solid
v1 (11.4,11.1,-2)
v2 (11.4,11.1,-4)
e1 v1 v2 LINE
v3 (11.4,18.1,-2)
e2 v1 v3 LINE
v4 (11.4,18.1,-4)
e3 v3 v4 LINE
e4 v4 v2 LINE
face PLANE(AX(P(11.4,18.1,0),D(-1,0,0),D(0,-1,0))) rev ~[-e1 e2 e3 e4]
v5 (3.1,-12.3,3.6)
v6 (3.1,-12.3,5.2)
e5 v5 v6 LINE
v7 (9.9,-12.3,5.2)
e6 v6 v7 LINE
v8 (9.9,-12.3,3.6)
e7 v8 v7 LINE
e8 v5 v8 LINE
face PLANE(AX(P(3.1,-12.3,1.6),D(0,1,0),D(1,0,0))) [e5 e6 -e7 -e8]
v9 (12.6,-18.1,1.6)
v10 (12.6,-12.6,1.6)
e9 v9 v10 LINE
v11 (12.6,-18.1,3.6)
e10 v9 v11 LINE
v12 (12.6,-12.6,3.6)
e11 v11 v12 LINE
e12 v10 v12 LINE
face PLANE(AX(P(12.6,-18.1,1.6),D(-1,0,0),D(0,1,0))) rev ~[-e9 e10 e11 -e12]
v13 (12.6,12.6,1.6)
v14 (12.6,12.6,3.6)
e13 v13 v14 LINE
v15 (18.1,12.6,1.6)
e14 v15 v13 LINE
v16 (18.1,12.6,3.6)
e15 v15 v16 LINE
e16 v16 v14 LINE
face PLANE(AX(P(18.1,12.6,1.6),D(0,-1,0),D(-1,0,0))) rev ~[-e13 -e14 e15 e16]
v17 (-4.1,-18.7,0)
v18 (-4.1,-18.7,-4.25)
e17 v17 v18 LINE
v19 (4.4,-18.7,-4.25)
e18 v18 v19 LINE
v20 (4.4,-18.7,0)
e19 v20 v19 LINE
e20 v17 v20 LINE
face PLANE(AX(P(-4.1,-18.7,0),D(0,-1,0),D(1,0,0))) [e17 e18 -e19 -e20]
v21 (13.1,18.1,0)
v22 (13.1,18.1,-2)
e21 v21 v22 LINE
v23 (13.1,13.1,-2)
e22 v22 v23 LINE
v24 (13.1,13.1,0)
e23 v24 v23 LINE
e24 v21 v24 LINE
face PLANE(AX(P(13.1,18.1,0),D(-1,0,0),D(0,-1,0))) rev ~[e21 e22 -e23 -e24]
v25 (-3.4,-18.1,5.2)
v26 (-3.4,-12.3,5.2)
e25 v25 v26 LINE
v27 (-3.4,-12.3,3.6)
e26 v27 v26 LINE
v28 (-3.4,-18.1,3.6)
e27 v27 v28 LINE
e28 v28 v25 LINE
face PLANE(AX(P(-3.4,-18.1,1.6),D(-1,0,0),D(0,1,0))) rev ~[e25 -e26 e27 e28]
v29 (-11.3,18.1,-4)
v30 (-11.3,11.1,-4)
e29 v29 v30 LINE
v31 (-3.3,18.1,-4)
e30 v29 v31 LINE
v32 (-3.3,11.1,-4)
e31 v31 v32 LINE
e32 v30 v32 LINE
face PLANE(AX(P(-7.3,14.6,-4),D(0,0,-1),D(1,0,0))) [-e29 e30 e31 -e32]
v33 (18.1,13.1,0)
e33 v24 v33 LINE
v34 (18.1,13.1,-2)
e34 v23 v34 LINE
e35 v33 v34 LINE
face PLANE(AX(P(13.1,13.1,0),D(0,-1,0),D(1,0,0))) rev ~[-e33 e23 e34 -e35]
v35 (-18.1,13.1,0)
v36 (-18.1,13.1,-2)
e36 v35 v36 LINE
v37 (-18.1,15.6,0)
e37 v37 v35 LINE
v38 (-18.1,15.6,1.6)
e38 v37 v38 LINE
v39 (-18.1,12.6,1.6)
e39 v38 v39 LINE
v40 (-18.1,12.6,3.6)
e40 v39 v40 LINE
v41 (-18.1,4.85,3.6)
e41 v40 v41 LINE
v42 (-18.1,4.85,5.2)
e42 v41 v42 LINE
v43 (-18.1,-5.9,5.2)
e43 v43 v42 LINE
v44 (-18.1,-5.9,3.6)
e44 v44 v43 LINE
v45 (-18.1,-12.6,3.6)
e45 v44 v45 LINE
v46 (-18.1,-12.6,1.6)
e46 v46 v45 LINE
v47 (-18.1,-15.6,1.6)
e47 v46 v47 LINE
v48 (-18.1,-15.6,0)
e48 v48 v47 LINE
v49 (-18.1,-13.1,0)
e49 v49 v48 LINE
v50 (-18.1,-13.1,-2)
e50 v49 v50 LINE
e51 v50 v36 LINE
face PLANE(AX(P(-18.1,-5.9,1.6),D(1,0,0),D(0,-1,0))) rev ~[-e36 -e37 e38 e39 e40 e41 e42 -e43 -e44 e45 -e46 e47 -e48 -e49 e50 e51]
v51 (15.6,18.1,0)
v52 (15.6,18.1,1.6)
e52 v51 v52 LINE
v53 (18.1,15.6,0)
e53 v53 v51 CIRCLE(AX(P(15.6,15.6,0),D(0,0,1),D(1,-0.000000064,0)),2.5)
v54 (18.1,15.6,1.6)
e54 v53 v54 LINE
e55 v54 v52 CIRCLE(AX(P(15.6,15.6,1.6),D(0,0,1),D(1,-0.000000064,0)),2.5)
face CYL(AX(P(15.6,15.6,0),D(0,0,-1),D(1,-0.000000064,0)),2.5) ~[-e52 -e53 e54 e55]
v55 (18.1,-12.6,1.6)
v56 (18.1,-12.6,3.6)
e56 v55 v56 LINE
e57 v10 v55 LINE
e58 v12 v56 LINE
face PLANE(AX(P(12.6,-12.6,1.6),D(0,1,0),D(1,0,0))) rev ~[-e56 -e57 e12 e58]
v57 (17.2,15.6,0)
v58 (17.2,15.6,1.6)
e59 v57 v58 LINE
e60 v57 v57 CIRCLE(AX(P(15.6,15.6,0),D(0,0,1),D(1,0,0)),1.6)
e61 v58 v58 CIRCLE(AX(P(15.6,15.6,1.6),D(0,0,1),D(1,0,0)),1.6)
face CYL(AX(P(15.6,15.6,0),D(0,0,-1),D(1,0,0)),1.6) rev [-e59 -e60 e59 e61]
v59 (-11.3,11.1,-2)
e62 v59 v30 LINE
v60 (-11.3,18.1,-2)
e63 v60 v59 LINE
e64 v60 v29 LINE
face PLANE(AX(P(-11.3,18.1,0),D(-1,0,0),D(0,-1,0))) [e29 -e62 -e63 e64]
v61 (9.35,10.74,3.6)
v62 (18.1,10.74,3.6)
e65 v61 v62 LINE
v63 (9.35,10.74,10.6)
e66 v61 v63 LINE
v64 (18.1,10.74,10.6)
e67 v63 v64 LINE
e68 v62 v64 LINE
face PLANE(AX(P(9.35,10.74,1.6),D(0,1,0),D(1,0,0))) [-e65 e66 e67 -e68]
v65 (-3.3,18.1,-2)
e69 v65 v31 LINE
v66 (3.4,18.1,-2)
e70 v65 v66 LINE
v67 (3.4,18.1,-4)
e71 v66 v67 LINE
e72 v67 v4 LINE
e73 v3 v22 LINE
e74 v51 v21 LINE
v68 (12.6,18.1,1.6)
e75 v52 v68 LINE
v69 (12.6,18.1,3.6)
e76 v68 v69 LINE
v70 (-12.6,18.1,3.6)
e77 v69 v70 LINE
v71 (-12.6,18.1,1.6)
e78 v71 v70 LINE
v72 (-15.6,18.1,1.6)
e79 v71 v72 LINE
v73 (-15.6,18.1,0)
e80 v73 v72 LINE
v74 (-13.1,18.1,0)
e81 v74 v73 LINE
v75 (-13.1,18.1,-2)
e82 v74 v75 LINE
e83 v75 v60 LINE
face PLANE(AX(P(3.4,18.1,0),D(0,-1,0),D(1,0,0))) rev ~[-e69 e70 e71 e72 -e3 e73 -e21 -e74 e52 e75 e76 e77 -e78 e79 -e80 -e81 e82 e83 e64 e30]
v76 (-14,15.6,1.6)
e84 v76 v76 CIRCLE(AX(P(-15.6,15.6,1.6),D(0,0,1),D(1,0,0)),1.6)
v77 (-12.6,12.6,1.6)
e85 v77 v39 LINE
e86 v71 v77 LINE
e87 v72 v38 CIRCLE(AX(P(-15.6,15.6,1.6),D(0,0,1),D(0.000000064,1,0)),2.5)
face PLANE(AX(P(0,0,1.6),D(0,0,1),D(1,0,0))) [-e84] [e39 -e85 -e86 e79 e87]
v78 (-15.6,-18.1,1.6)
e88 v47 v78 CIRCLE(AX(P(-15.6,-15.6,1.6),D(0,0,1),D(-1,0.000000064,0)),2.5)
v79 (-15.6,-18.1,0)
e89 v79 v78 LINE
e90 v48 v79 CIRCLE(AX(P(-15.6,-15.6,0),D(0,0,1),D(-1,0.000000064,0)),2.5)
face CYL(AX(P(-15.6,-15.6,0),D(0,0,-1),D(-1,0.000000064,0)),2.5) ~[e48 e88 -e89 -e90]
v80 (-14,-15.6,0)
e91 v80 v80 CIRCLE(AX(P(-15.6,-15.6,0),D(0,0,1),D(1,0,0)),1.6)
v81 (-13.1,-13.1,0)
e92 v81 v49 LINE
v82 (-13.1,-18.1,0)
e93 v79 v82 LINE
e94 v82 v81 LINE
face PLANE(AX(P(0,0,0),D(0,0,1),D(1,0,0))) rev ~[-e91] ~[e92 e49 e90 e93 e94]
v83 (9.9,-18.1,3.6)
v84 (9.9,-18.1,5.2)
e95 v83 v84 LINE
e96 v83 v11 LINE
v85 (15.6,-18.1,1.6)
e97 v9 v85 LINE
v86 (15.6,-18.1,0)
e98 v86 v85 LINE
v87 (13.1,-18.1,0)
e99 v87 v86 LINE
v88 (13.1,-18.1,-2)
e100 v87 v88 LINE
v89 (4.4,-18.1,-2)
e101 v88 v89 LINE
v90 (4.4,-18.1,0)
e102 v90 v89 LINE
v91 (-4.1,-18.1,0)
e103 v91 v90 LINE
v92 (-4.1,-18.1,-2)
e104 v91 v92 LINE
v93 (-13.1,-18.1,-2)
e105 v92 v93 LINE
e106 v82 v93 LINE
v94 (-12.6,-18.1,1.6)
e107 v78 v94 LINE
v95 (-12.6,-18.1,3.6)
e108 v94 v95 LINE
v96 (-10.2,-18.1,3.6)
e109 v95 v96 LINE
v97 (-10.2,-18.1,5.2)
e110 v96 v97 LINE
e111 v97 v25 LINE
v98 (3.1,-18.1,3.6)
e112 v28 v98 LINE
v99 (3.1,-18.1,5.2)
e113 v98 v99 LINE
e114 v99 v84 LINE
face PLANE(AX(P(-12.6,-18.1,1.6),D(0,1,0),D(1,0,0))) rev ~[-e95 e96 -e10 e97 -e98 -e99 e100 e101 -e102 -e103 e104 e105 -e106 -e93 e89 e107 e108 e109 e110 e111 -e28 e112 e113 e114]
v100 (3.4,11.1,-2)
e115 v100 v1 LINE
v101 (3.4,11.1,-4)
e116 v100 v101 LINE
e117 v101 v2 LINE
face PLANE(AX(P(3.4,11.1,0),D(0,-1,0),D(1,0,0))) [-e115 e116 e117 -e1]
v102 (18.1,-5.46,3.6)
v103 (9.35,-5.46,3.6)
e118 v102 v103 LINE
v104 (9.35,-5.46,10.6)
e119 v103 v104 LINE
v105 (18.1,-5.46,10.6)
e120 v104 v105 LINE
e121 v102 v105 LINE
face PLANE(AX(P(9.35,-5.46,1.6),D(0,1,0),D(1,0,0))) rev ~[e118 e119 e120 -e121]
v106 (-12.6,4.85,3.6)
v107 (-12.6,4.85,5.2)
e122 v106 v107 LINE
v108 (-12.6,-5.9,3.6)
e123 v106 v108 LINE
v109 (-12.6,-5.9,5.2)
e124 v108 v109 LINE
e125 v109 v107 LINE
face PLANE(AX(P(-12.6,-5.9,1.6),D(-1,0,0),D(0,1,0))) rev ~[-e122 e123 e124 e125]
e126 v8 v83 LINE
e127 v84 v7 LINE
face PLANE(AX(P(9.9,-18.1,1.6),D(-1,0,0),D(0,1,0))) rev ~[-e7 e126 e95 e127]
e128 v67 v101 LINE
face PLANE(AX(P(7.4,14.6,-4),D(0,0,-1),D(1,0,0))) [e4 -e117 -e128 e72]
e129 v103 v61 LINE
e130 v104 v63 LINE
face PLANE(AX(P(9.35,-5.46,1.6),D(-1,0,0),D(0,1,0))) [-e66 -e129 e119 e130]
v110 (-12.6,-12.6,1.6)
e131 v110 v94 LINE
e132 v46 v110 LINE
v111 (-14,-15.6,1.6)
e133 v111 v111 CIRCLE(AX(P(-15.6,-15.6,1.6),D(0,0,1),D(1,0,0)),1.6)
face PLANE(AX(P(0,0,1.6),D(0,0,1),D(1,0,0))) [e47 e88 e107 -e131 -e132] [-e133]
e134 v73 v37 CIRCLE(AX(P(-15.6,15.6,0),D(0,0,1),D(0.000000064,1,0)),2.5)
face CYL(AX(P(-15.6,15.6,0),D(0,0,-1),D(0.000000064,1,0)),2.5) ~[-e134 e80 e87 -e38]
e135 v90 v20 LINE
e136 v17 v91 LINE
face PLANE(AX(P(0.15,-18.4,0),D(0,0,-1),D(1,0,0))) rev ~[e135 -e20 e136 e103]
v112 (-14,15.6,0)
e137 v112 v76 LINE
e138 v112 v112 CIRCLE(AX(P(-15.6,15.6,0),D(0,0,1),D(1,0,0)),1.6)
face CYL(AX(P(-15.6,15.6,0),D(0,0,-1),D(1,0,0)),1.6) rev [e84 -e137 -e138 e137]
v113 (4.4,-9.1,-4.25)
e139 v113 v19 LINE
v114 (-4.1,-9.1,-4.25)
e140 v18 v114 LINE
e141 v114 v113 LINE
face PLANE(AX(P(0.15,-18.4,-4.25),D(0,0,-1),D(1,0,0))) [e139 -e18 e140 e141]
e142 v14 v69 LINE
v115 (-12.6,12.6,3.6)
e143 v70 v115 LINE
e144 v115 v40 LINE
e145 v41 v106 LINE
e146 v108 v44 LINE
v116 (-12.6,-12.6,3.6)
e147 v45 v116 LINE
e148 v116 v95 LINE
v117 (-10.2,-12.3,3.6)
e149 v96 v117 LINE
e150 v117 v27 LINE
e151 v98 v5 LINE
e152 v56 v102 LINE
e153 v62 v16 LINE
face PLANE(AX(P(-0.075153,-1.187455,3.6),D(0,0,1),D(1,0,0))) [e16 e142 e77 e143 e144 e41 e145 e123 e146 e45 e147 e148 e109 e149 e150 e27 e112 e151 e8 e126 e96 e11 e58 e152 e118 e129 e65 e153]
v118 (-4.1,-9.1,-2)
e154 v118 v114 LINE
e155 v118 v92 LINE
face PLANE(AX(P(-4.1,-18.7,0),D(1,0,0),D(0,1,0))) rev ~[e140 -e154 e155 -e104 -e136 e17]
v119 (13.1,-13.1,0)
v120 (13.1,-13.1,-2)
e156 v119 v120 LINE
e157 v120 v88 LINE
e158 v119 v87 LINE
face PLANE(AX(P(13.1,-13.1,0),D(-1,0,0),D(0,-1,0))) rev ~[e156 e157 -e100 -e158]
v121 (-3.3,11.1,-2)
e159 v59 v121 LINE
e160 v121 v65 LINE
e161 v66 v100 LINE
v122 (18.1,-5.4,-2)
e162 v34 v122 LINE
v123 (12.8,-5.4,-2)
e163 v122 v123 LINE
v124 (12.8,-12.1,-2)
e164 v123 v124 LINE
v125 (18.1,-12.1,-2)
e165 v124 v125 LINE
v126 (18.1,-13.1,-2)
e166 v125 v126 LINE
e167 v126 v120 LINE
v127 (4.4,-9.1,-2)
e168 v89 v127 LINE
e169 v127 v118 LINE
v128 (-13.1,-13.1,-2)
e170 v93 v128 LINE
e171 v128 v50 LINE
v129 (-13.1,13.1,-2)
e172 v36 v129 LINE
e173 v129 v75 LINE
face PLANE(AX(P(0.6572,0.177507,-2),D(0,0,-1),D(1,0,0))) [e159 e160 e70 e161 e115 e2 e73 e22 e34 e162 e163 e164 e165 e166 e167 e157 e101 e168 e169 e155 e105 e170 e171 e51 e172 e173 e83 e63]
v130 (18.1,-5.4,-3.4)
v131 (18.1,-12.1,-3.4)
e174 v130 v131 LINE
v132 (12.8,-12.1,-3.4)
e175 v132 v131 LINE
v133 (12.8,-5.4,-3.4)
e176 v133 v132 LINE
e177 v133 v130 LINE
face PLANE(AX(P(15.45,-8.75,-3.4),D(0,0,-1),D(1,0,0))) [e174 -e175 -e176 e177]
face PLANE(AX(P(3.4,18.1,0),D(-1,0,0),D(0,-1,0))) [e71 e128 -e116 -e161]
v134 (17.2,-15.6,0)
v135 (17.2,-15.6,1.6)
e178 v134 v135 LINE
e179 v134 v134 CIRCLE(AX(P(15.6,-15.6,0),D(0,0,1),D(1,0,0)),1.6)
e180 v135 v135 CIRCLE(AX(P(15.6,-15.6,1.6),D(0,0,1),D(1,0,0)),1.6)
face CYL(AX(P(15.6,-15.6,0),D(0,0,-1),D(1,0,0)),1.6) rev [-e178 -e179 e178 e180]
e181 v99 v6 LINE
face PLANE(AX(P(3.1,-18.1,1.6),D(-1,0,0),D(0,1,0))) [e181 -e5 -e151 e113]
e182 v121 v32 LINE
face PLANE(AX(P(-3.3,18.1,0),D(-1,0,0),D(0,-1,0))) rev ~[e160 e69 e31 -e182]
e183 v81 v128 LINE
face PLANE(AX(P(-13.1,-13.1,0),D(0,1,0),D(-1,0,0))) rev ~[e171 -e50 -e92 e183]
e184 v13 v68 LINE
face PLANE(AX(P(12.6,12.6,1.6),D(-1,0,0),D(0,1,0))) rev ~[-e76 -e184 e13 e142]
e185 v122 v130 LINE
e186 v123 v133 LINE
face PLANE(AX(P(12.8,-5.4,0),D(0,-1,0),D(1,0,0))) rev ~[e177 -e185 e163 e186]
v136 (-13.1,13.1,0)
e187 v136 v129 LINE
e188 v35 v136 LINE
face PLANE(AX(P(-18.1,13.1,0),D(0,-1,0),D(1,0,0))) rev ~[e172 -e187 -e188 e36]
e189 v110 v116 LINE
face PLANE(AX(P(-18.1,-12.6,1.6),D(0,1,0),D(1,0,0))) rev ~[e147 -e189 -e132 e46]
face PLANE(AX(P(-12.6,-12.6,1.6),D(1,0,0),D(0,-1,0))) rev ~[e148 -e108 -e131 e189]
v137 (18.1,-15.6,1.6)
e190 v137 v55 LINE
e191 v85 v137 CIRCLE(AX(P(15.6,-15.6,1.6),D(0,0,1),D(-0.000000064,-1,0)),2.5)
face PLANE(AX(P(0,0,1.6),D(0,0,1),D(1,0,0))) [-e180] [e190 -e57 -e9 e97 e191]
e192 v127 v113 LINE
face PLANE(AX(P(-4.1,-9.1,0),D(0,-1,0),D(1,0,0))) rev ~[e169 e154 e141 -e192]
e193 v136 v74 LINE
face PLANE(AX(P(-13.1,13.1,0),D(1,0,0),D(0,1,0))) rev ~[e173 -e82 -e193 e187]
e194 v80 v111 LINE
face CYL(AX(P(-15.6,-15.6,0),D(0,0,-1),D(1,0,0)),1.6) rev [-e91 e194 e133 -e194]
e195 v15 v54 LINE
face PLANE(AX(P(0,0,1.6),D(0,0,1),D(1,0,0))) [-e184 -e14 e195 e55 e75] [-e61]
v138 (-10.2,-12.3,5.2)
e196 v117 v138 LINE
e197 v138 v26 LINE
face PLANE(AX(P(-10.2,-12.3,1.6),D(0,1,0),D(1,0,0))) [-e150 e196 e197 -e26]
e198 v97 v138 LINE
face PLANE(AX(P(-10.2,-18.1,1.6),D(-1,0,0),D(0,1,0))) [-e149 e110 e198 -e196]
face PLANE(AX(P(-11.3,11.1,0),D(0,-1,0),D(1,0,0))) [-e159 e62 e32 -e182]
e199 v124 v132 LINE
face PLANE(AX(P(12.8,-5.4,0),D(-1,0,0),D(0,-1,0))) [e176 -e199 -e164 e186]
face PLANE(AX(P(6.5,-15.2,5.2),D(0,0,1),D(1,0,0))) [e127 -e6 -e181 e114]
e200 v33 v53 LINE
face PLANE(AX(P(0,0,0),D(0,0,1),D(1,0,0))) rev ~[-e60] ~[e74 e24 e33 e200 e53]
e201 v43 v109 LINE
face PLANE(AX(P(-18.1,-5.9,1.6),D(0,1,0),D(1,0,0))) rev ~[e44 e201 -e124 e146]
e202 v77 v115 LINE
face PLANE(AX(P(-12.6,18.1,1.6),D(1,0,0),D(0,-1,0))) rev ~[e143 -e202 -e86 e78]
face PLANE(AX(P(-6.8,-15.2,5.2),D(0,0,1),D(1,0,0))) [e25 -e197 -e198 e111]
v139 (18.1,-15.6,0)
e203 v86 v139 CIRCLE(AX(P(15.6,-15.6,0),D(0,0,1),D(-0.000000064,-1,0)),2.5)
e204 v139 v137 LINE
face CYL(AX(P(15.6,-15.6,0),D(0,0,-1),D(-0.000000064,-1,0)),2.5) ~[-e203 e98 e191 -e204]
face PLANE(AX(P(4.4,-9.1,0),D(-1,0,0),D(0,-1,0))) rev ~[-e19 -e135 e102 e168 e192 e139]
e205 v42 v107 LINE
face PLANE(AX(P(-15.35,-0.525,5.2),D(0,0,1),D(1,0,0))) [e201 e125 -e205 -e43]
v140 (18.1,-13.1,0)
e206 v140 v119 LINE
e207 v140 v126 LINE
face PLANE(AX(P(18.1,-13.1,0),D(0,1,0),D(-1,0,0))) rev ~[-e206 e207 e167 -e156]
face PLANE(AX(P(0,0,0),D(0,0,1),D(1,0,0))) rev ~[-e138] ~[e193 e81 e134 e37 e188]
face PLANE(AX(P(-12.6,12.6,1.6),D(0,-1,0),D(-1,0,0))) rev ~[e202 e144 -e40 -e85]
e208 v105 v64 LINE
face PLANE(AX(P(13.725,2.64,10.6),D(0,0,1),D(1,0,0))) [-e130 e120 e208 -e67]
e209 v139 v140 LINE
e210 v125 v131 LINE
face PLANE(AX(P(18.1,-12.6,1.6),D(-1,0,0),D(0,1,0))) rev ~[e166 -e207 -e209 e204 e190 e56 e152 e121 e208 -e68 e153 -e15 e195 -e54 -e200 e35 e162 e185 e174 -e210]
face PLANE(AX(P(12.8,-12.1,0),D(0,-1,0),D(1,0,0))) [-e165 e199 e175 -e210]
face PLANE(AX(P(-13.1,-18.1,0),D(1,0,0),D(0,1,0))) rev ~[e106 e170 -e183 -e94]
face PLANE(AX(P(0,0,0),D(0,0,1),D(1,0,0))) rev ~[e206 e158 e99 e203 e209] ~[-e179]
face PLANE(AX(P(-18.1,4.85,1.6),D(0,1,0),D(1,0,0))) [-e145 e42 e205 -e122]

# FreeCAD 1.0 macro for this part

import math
import FreeCAD as App
import Part
import Sketcher
from FreeCAD import Vector
Q = App.Units.Quantity

doc = App.newDocument("Part")
body = doc.addObject("PartDesign::Body", "Body")

sketch1 = doc.addObject("Sketcher::SketchObject", "Sketch")
body.addObject(sketch1)
sketch1.AttachmentSupport = (doc.XY_Plane, [""])
sketch1.MapMode = "FlatFace"
sketch1.addGeometry([
    Part.LineSegment(Vector(15.6, 18.1, 0), Vector(-15.6, 18.1, 0)),
    Part.ArcOfCircle(Part.Circle(Vector(-15.6, 15.6, 0), Vector(0, 0, 1), 2.5), math.radians(89.999996), math.radians(180.000004)),
    Part.LineSegment(Vector(-18.1, 15.6, 0), Vector(-18.1, -15.6, 0)),
    Part.ArcOfCircle(Part.Circle(Vector(-15.6, -15.6, 0), Vector(0, 0, 1), 2.5), math.radians(179.999996), math.radians(270.000004)),
    Part.LineSegment(Vector(-15.6, -18.1, 0), Vector(15.6, -18.1, 0)),
    Part.ArcOfCircle(Part.Circle(Vector(15.6, -15.6, 0), Vector(0, 0, 1), 2.5), math.radians(-90.000004), math.radians(0.000004)),
    Part.LineSegment(Vector(18.1, -15.6, 0), Vector(18.1, 15.6, 0)),
    Part.ArcOfCircle(Part.Circle(Vector(15.6, 15.6, 0), Vector(0, 0, 1), 2.5), math.radians(-0.000004), math.radians(90.000004)),
    Part.Circle(Vector(-15.6, -15.6, 0), Vector(0, 0, 1), 1.6),
    Part.Circle(Vector(15.6, -15.6, 0), Vector(0, 0, 1), 1.6),
    Part.Circle(Vector(-15.6, 15.6, 0), Vector(0, 0, 1), 1.6),
    Part.Circle(Vector(15.6, 15.6, 0), Vector(0, 0, 1), 1.6),
], False)
sketch1.addConstraint([
    Sketcher.Constraint("Tangent", 0, 2, 1, 1),
    Sketcher.Constraint("Tangent", 1, 2, 2, 1),
    Sketcher.Constraint("Tangent", 2, 2, 3, 1),
    Sketcher.Constraint("Tangent", 3, 2, 4, 1),
    Sketcher.Constraint("Tangent", 4, 2, 5, 1),
    Sketcher.Constraint("Tangent", 5, 2, 6, 1),
    Sketcher.Constraint("Tangent", 6, 2, 7, 1),
    Sketcher.Constraint("Tangent", 7, 2, 0, 1),
    Sketcher.Constraint("Horizontal", 0),
    Sketcher.Constraint("Vertical", 2),
    Sketcher.Constraint("Horizontal", 4),
    Sketcher.Constraint("Vertical", 6),
    Sketcher.Constraint("Coincident", 8, 3, 3, 3),
    Sketcher.Constraint("Coincident", 9, 3, 5, 3),
    Sketcher.Constraint("Coincident", 10, 3, 1, 3),
    Sketcher.Constraint("Coincident", 11, 3, 7, 3),
    Sketcher.Constraint("Equal", 1, 3),
    Sketcher.Constraint("Equal", 3, 5),
    Sketcher.Constraint("Equal", 5, 7),
    Sketcher.Constraint("Equal", 8, 9),
    Sketcher.Constraint("Equal", 9, 10),
    Sketcher.Constraint("Equal", 10, 11),
    Sketcher.Constraint("Symmetric", 1, 3, 5, 3, -1, 1),
    Sketcher.Constraint("Equal", 4, 2),
    Sketcher.Constraint("Diameter", 8, Q("3.2 mm")),
    Sketcher.Constraint("Radius", 1, Q("2.5 mm")),
    Sketcher.Constraint("DistanceX", 0, 2, 0, 1, Q("31.2 mm")),
])
pad1 = doc.addObject("PartDesign::Pad", "Pad")
body.addObject(pad1)
pad1.Profile = sketch1
pad1.Length = 1.6

sketch2 = doc.addObject("Sketcher::SketchObject", "Sketch001")
body.addObject(sketch2)
sketch2.AttachmentSupport = (doc.XY_Plane, [""])
sketch2.MapMode = "FlatFace"
sketch2.AttachmentOffset = App.Placement(Vector(0, 0, 1.6), App.Rotation())
sketch2.addGeometry([
    Part.LineSegment(Vector(-18.1, 4.85, 0), Vector(-18.1, -5.9, 0)),
    Part.LineSegment(Vector(-18.1, -5.9, 0), Vector(-12.6, -5.9, 0)),
    Part.LineSegment(Vector(-12.6, -5.9, 0), Vector(-12.6, 4.85, 0)),
    Part.LineSegment(Vector(-12.6, 4.85, 0), Vector(-18.1, 4.85, 0)),
    Part.LineSegment(Vector(-10.2, -12.3, 0), Vector(-10.2, -18.1, 0)),
    Part.LineSegment(Vector(-10.2, -18.1, 0), Vector(-3.4, -18.1, 0)),
    Part.LineSegment(Vector(-3.4, -18.1, 0), Vector(-3.4, -12.3, 0)),
    Part.LineSegment(Vector(-3.4, -12.3, 0), Vector(-10.2, -12.3, 0)),
    Part.LineSegment(Vector(3.1, -12.3, 0), Vector(3.1, -18.1, 0)),
    Part.LineSegment(Vector(3.1, -18.1, 0), Vector(9.9, -18.1, 0)),
    Part.LineSegment(Vector(9.9, -18.1, 0), Vector(9.9, -12.3, 0)),
    Part.LineSegment(Vector(9.9, -12.3, 0), Vector(3.1, -12.3, 0)),
], False)
sketch2.addConstraint([
    Sketcher.Constraint("Coincident", 0, 2, 1, 1),
    Sketcher.Constraint("Coincident", 1, 2, 2, 1),
    Sketcher.Constraint("Coincident", 2, 2, 3, 1),
    Sketcher.Constraint("Coincident", 3, 2, 0, 1),
    Sketcher.Constraint("Coincident", 4, 2, 5, 1),
    Sketcher.Constraint("Coincident", 5, 2, 6, 1),
    Sketcher.Constraint("Coincident", 6, 2, 7, 1),
    Sketcher.Constraint("Coincident", 7, 2, 4, 1),
    Sketcher.Constraint("Coincident", 8, 2, 9, 1),
    Sketcher.Constraint("Coincident", 9, 2, 10, 1),
    Sketcher.Constraint("Coincident", 10, 2, 11, 1),
    Sketcher.Constraint("Coincident", 11, 2, 8, 1),
    Sketcher.Constraint("Vertical", 0),
    Sketcher.Constraint("Horizontal", 1),
    Sketcher.Constraint("Vertical", 2),
    Sketcher.Constraint("Horizontal", 3),
    Sketcher.Constraint("Vertical", 4),
    Sketcher.Constraint("Horizontal", 5),
    Sketcher.Constraint("Vertical", 6),
    Sketcher.Constraint("Horizontal", 7),
    Sketcher.Constraint("Vertical", 8),
    Sketcher.Constraint("Horizontal", 9),
    Sketcher.Constraint("Vertical", 10),
    Sketcher.Constraint("Horizontal", 11),
    Sketcher.Constraint("Horizontal", 5, 2, 8, 2),
    Sketcher.Constraint("Horizontal", 7, 2, 10, 2),
    Sketcher.Constraint("Equal", 7, 9),
    Sketcher.Constraint("DistanceX", 1, 1, 1, 2, Q("5.5 mm")),
    Sketcher.Constraint("DistanceX", 5, 1, 5, 2, Q("6.8 mm")),
    Sketcher.Constraint("DistanceY", 4, 2, 4, 1, Q("5.8 mm")),
    Sketcher.Constraint("DistanceY", 0, 2, 0, 1, Q("10.75 mm")),
    Sketcher.Constraint("DistanceX", 0, 2, -1, 1, Q("18.1 mm")),
    Sketcher.Constraint("DistanceY", 0, 2, -1, 1, Q("5.9 mm")),
    Sketcher.Constraint("DistanceX", 4, 2, -1, 1, Q("10.2 mm")),
    Sketcher.Constraint("DistanceY", 4, 2, -1, 1, Q("18.1 mm")),
    Sketcher.Constraint("DistanceX", -1, 1, 8, 2, Q("3.1 mm")),
])
pad2 = doc.addObject("PartDesign::Pad", "Pad001")
body.addObject(pad2)
pad2.Profile = sketch2
pad2.Length = 3.6

sketch3 = doc.addObject("Sketcher::SketchObject", "Sketch002")
body.addObject(sketch3)
sketch3.AttachmentSupport = (doc.XY_Plane, [""])
sketch3.MapMode = "FlatFace"
sketch3.AttachmentOffset = App.Placement(Vector(0, 0, 1.6), App.Rotation())
sketch3.addGeometry([
    Part.LineSegment(Vector(9.35, 10.74, 0), Vector(9.35, -5.46, 0)),
    Part.LineSegment(Vector(9.35, -5.46, 0), Vector(18.1, -5.46, 0)),
    Part.LineSegment(Vector(18.1, -5.46, 0), Vector(18.1, 10.74, 0)),
    Part.LineSegment(Vector(18.1, 10.74, 0), Vector(9.35, 10.74, 0)),
], False)
sketch3.addConstraint([
    Sketcher.Constraint("Coincident", 0, 2, 1, 1),
    Sketcher.Constraint("Coincident", 1, 2, 2, 1),
    Sketcher.Constraint("Coincident", 2, 2, 3, 1),
    Sketcher.Constraint("Coincident", 3, 2, 0, 1),
    Sketcher.Constraint("Vertical", 0),
    Sketcher.Constraint("Horizontal", 1),
    Sketcher.Constraint("Vertical", 2),
    Sketcher.Constraint("Horizontal", 3),
    Sketcher.Constraint("DistanceY", 0, 2, 0, 1, Q("16.2 mm")),
    Sketcher.Constraint("DistanceX", 1, 1, 1, 2, Q("8.75 mm")),
    Sketcher.Constraint("DistanceX", -1, 1, 1, 2, Q("18.1 mm")),
    Sketcher.Constraint("DistanceY", 0, 2, -1, 1, Q("5.46 mm")),
])
pad3 = doc.addObject("PartDesign::Pad", "Pad002")
body.addObject(pad3)
pad3.Profile = sketch3
pad3.Length = 9

sketch4 = doc.addObject("Sketcher::SketchObject", "Sketch003")
body.addObject(sketch4)
sketch4.AttachmentSupport = (doc.XY_Plane, [""])
sketch4.MapMode = "FlatFace"
sketch4.AttachmentOffset = App.Placement(Vector(0, 0, 1.6), App.Rotation())
sketch4.addGeometry([
    Part.LineSegment(Vector(-12.6, -5.9, 0), Vector(-18.1, -5.9, 0)),
    Part.LineSegment(Vector(-18.1, -5.9, 0), Vector(-18.1, -12.6, 0)),
    Part.LineSegment(Vector(-18.1, -12.6, 0), Vector(-12.6, -12.6, 0)),
    Part.LineSegment(Vector(-12.6, -12.6, 0), Vector(-12.6, -18.1, 0)),
    Part.LineSegment(Vector(-12.6, -18.1, 0), Vector(-10.2, -18.1, 0)),
    Part.LineSegment(Vector(-10.2, -18.1, 0), Vector(-10.2, -12.3, 0)),
    Part.LineSegment(Vector(-10.2, -12.3, 0), Vector(-3.4, -12.3, 0)),
    Part.LineSegment(Vector(-3.4, -12.3, 0), Vector(-3.4, -18.1, 0)),
    Part.LineSegment(Vector(-3.4, -18.1, 0), Vector(3.1, -18.1, 0)),
    Part.LineSegment(Vector(3.1, -18.1, 0), Vector(3.1, -12.3, 0)),
    Part.LineSegment(Vector(3.1, -12.3, 0), Vector(9.9, -12.3, 0)),
    Part.LineSegment(Vector(9.9, -12.3, 0), Vector(9.9, -18.1, 0)),
    Part.LineSegment(Vector(9.9, -18.1, 0), Vector(12.6, -18.1, 0)),
    Part.LineSegment(Vector(12.6, -18.1, 0), Vector(12.6, -12.6, 0)),
    Part.LineSegment(Vector(12.6, -12.6, 0), Vector(18.1, -12.6, 0)),
    Part.LineSegment(Vector(18.1, -12.6, 0), Vector(18.1, -5.46, 0)),
    Part.LineSegment(Vector(18.1, -5.46, 0), Vector(9.35, -5.46, 0)),
    Part.LineSegment(Vector(9.35, -5.46, 0), Vector(9.35, 10.74, 0)),
    Part.LineSegment(Vector(9.35, 10.74, 0), Vector(18.1, 10.74, 0)),
    Part.LineSegment(Vector(18.1, 10.74, 0), Vector(18.1, 12.6, 0)),
    Part.LineSegment(Vector(18.1, 12.6, 0), Vector(12.6, 12.6, 0)),
    Part.LineSegment(Vector(12.6, 12.6, 0), Vector(12.6, 18.1, 0)),
    Part.LineSegment(Vector(12.6, 18.1, 0), Vector(-12.6, 18.1, 0)),
    Part.LineSegment(Vector(-12.6, 18.1, 0), Vector(-12.6, 12.6, 0)),
    Part.LineSegment(Vector(-12.6, 12.6, 0), Vector(-18.1, 12.6, 0)),
    Part.LineSegment(Vector(-18.1, 12.6, 0), Vector(-18.1, 4.85, 0)),
    Part.LineSegment(Vector(-18.1, 4.85, 0), Vector(-12.6, 4.85, 0)),
    Part.LineSegment(Vector(-12.6, 4.85, 0), Vector(-12.6, -5.9, 0)),
], False)
sketch4.addConstraint([
    Sketcher.Constraint("Coincident", 0, 2, 1, 1),
    Sketcher.Constraint("Coincident", 1, 2, 2, 1),
    Sketcher.Constraint("Coincident", 2, 2, 3, 1),
    Sketcher.Constraint("Coincident", 3, 2, 4, 1),
    Sketcher.Constraint("Coincident", 4, 2, 5, 1),
    Sketcher.Constraint("Coincident", 5, 2, 6, 1),
    Sketcher.Constraint("Coincident", 6, 2, 7, 1),
    Sketcher.Constraint("Coincident", 7, 2, 8, 1),
    Sketcher.Constraint("Coincident", 8, 2, 9, 1),
    Sketcher.Constraint("Coincident", 9, 2, 10, 1),
    Sketcher.Constraint("Coincident", 10, 2, 11, 1),
    Sketcher.Constraint("Coincident", 11, 2, 12, 1),
    Sketcher.Constraint("Coincident", 12, 2, 13, 1),
    Sketcher.Constraint("Coincident", 13, 2, 14, 1),
    Sketcher.Constraint("Coincident", 14, 2, 15, 1),
    Sketcher.Constraint("Coincident", 15, 2, 16, 1),
    Sketcher.Constraint("Coincident", 16, 2, 17, 1),
    Sketcher.Constraint("Coincident", 17, 2, 18, 1),
    Sketcher.Constraint("Coincident", 18, 2, 19, 1),
    Sketcher.Constraint("Coincident", 19, 2, 20, 1),
    Sketcher.Constraint("Coincident", 20, 2, 21, 1),
    Sketcher.Constraint("Coincident", 21, 2, 22, 1),
    Sketcher.Constraint("Coincident", 22, 2, 23, 1),
    Sketcher.Constraint("Coincident", 23, 2, 24, 1),
    Sketcher.Constraint("Coincident", 24, 2, 25, 1),
    Sketcher.Constraint("Coincident", 25, 2, 26, 1),
    Sketcher.Constraint("Coincident", 26, 2, 27, 1),
    Sketcher.Constraint("Coincident", 27, 2, 0, 1),
    Sketcher.Constraint("Horizontal", 0),
    Sketcher.Constraint("Vertical", 1),
    Sketcher.Constraint("Horizontal", 2),
    Sketcher.Constraint("Vertical", 3),
    Sketcher.Constraint("Horizontal", 4),
    Sketcher.Constraint("Vertical", 5),
    Sketcher.Constraint("Horizontal", 6),
    Sketcher.Constraint("Vertical", 7),
    Sketcher.Constraint("Horizontal", 8),
    Sketcher.Constraint("Vertical", 9),
    Sketcher.Constraint("Horizontal", 10),
    Sketcher.Constraint("Vertical", 11),
    Sketcher.Constraint("Horizontal", 12),
    Sketcher.Constraint("Vertical", 13),
    Sketcher.Constraint("Horizontal", 14),
    Sketcher.Constraint("Vertical", 15),
    Sketcher.Constraint("Horizontal", 16),
    Sketcher.Constraint("Vertical", 17),
    Sketcher.Constraint("Horizontal", 18),
    Sketcher.Constraint("Vertical", 19),
    Sketcher.Constraint("Horizontal", 20),
    Sketcher.Constraint("Vertical", 21),
    Sketcher.Constraint("Horizontal", 22),
    Sketcher.Constraint("Vertical", 23),
    Sketcher.Constraint("Horizontal", 24),
    Sketcher.Constraint("Vertical", 25),
    Sketcher.Constraint("Horizontal", 26),
    Sketcher.Constraint("Vertical", 27),
    Sketcher.Constraint("Symmetric", 1, 2, 19, 2, -1, 1),
    Sketcher.Constraint("Symmetric", 3, 2, 21, 2, -1, 1),
    Sketcher.Constraint("Symmetric", 12, 2, 22, 2, -1, 1),
    Sketcher.Constraint("Symmetric", 14, 2, 24, 2, -1, 1),
    Sketcher.Constraint("Symmetric", 2, 2, 13, 2, -2),
    Sketcher.Constraint("Horizontal", 4, 2, 7, 2),
    Sketcher.Constraint("Horizontal", 6, 2, 9, 2),
    Sketcher.Constraint("Vertical", 15, 2, 18, 2),
    Sketcher.Constraint("Vertical", 23, 2, 26, 2),
    Sketcher.Constraint("Equal", 6, 10),
    Sketcher.Constraint("Equal", 26, 3),
    Sketcher.Constraint("DistanceX", 0, 2, 0, 1, Q("5.5 mm")),
    Sketcher.Constraint("DistanceX", 4, 1, 4, 2, Q("2.4 mm")),
    Sketcher.Constraint("DistanceX", 6, 1, 6, 2, Q("6.8 mm")),
    Sketcher.Constraint("DistanceX", 8, 1, 8, 2, Q("6.5 mm")),
    Sketcher.Constraint("DistanceX", 12, 1, 12, 2, Q("2.7 mm")),
    Sketcher.Constraint("DistanceY", 1, 2, 1, 1, Q("6.7 mm")),
    Sketcher.Constraint("DistanceY", 5, 1, 5, 2, Q("5.8 mm")),
    Sketcher.Constraint("DistanceY", 17, 1, 17, 2, Q("16.2 mm")),
    Sketcher.Constraint("DistanceY", 0, 2, 22, 2, Q("24 mm")),
    Sketcher.Constraint("DistanceX", 16, 2, 16, 1, Q("8.75 mm")),
    Sketcher.Constraint("DistanceY", 15, 1, 15, 2, Q("7.14 mm")),
    Sketcher.Constraint("DistanceY", 25, 2, 25, 1, Q("7.75 mm")),
])
pad4 = doc.addObject("PartDesign::Pad", "Pad003")
body.addObject(pad4)
pad4.Profile = sketch4
pad4.Length = 2

sketch5 = doc.addObject("Sketcher::SketchObject", "Sketch004")
body.addObject(sketch5)
sketch5.AttachmentSupport = (doc.XY_Plane, [""])
sketch5.MapMode = "FlatFace"
sketch5.addGeometry([
    Part.LineSegment(Vector(12.8, -12.1, 0), Vector(18.1, -12.1, 0)),
    Part.LineSegment(Vector(18.1, -12.1, 0), Vector(18.1, -13.1, 0)),
    Part.LineSegment(Vector(18.1, -13.1, 0), Vector(13.1, -13.1, 0)),
    Part.LineSegment(Vector(13.1, -13.1, 0), Vector(13.1, -18.1, 0)),
    Part.LineSegment(Vector(13.1, -18.1, 0), Vector(4.4, -18.1, 0)),
    Part.LineSegment(Vector(4.4, -18.1, 0), Vector(4.4, -9.1, 0)),
    Part.LineSegment(Vector(4.4, -9.1, 0), Vector(-4.1, -9.1, 0)),
    Part.LineSegment(Vector(-4.1, -9.1, 0), Vector(-4.1, -18.1, 0)),
    Part.LineSegment(Vector(-4.1, -18.1, 0), Vector(-13.1, -18.1, 0)),
    Part.LineSegment(Vector(-13.1, -18.1, 0), Vector(-13.1, -13.1, 0)),
    Part.LineSegment(Vector(-13.1, -13.1, 0), Vector(-18.1, -13.1, 0)),
    Part.LineSegment(Vector(-18.1, -13.1, 0), Vector(-18.1, 13.1, 0)),
    Part.LineSegment(Vector(-18.1, 13.1, 0), Vector(-13.1, 13.1, 0)),
    Part.LineSegment(Vector(-13.1, 13.1, 0), Vector(-13.1, 18.1, 0)),
    Part.LineSegment(Vector(-13.1, 18.1, 0), Vector(-11.3, 18.1, 0)),
    Part.LineSegment(Vector(-11.3, 18.1, 0), Vector(-11.3, 11.1, 0)),
    Part.LineSegment(Vector(-11.3, 11.1, 0), Vector(-3.3, 11.1, 0)),
    Part.LineSegment(Vector(-3.3, 11.1, 0), Vector(-3.3, 18.1, 0)),
    Part.LineSegment(Vector(-3.3, 18.1, 0), Vector(3.4, 18.1, 0)),
    Part.LineSegment(Vector(3.4, 18.1, 0), Vector(3.4, 11.1, 0)),
    Part.LineSegment(Vector(3.4, 11.1, 0), Vector(11.4, 11.1, 0)),
    Part.LineSegment(Vector(11.4, 11.1, 0), Vector(11.4, 18.1, 0)),
    Part.LineSegment(Vector(11.4, 18.1, 0), Vector(13.1, 18.1, 0)),
    Part.LineSegment(Vector(13.1, 18.1, 0), Vector(13.1, 13.1, 0)),
    Part.LineSegment(Vector(13.1, 13.1, 0), Vector(18.1, 13.1, 0)),
    Part.LineSegment(Vector(18.1, 13.1, 0), Vector(18.1, -5.4, 0)),
    Part.LineSegment(Vector(18.1, -5.4, 0), Vector(12.8, -5.4, 0)),
    Part.LineSegment(Vector(12.8, -5.4, 0), Vector(12.8, -12.1, 0)),
], False)
sketch5.addConstraint([
    Sketcher.Constraint("Coincident", 0, 2, 1, 1),
    Sketcher.Constraint("Coincident", 1, 2, 2, 1),
    Sketcher.Constraint("Coincident", 2, 2, 3, 1),
    Sketcher.Constraint("Coincident", 3, 2, 4, 1),
    Sketcher.Constraint("Coincident", 4, 2, 5, 1),
    Sketcher.Constraint("Coincident", 5, 2, 6, 1),
    Sketcher.Constraint("Coincident", 6, 2, 7, 1),
    Sketcher.Constraint("Coincident", 7, 2, 8, 1),
    Sketcher.Constraint("Coincident", 8, 2, 9, 1),
    Sketcher.Constraint("Coincident", 9, 2, 10, 1),
    Sketcher.Constraint("Coincident", 10, 2, 11, 1),
    Sketcher.Constraint("Coincident", 11, 2, 12, 1),
    Sketcher.Constraint("Coincident", 12, 2, 13, 1),
    Sketcher.Constraint("Coincident", 13, 2, 14, 1),
    Sketcher.Constraint("Coincident", 14, 2, 15, 1),
    Sketcher.Constraint("Coincident", 15, 2, 16, 1),
    Sketcher.Constraint("Coincident", 16, 2, 17, 1),
    Sketcher.Constraint("Coincident", 17, 2, 18, 1),
    Sketcher.Constraint("Coincident", 18, 2, 19, 1),
    Sketcher.Constraint("Coincident", 19, 2, 20, 1),
    Sketcher.Constraint("Coincident", 20, 2, 21, 1),
    Sketcher.Constraint("Coincident", 21, 2, 22, 1),
    Sketcher.Constraint("Coincident", 22, 2, 23, 1),
    Sketcher.Constraint("Coincident", 23, 2, 24, 1),
    Sketcher.Constraint("Coincident", 24, 2, 25, 1),
    Sketcher.Constraint("Coincident", 25, 2, 26, 1),
    Sketcher.Constraint("Coincident", 26, 2, 27, 1),
    Sketcher.Constraint("Coincident", 27, 2, 0, 1),
    Sketcher.Constraint("Horizontal", 0),
    Sketcher.Constraint("Vertical", 1),
    Sketcher.Constraint("Horizontal", 2),
    Sketcher.Constraint("Vertical", 3),
    Sketcher.Constraint("Horizontal", 4),
    Sketcher.Constraint("Vertical", 5),
    Sketcher.Constraint("Horizontal", 6),
    Sketcher.Constraint("Vertical", 7),
    Sketcher.Constraint("Horizontal", 8),
    Sketcher.Constraint("Vertical", 9),
    Sketcher.Constraint("Horizontal", 10),
    Sketcher.Constraint("Vertical", 11),
    Sketcher.Constraint("Horizontal", 12),
    Sketcher.Constraint("Vertical", 13),
    Sketcher.Constraint("Horizontal", 14),
    Sketcher.Constraint("Vertical", 15),
    Sketcher.Constraint("Horizontal", 16),
    Sketcher.Constraint("Vertical", 17),
    Sketcher.Constraint("Horizontal", 18),
    Sketcher.Constraint("Vertical", 19),
    Sketcher.Constraint("Horizontal", 20),
    Sketcher.Constraint("Vertical", 21),
    Sketcher.Constraint("Horizontal", 22),
    Sketcher.Constraint("Vertical", 23),
    Sketcher.Constraint("Horizontal", 24),
    Sketcher.Constraint("Vertical", 25),
    Sketcher.Constraint("Horizontal", 26),
    Sketcher.Constraint("Vertical", 27),
    Sketcher.Constraint("Symmetric", 1, 2, 11, 2, -1, 1),
    Sketcher.Constraint("Symmetric", 3, 2, 13, 2, -1, 1),
    Sketcher.Constraint("Symmetric", 8, 2, 22, 2, -1, 1),
    Sketcher.Constraint("Symmetric", 10, 2, 24, 2, -1, 1),
    Sketcher.Constraint("Symmetric", 3, 2, 8, 2, -2),
    Sketcher.Constraint("Horizontal", 2, 2, 9, 2),
    Sketcher.Constraint("Horizontal", 14, 2, 17, 2),
    Sketcher.Constraint("Horizontal", 16, 2, 19, 2),
    Sketcher.Constraint("Equal", 16, 20),
    Sketcher.Constraint("Equal", 24, 3),
    Sketcher.Constraint("Equal", 8, 5),
    Sketcher.Constraint("Equal", 18, 27),
    Sketcher.Constraint("DistanceX", 2, 2, 2, 1, Q("5 mm")),
    Sketcher.Constraint("DistanceX", 8, 2, 8, 1, Q("9 mm")),
    Sketcher.Constraint("DistanceX", 16, 1, 16, 2, Q("8 mm")),
    Sketcher.Constraint("DistanceY", 1, 2, 1, 1, Q("1 mm")),
    Sketcher.Constraint("DistanceY", 15, 2, 15, 1, Q("7 mm")),
    Sketcher.Constraint("DistanceX", 0, 1, 0, 2, Q("5.3 mm")),
    Sketcher.Constraint("DistanceX", 4, 2, 4, 1, Q("8.7 mm")),
    Sketcher.Constraint("DistanceX", 6, 2, 6, 1, Q("8.5 mm")),
    Sketcher.Constraint("DistanceX", 14, 1, 14, 2, Q("1.8 mm")),
    Sketcher.Constraint("DistanceX", 18, 1, 18, 2, Q("6.7 mm")),
    Sketcher.Constraint("DistanceY", 11, 1, 11, 2, Q("26.2 mm")),
])
pad5 = doc.addObject("PartDesign::Pad", "Pad004")
body.addObject(pad5)
pad5.Profile = sketch5
pad5.Length = 2
pad5.Reversed = True

sketch6 = doc.addObject("Sketcher::SketchObject", "Sketch005")
body.addObject(sketch6)
sketch6.AttachmentSupport = (doc.XY_Plane, [""])
sketch6.MapMode = "FlatFace"
sketch6.addGeometry([
    Part.LineSegment(Vector(-4.1, -18.7, 0), Vector(-4.1, -9.1, 0)),
    Part.LineSegment(Vector(-4.1, -9.1, 0), Vector(4.4, -9.1, 0)),
    Part.LineSegment(Vector(4.4, -9.1, 0), Vector(4.4, -18.7, 0)),
    Part.LineSegment(Vector(4.4, -18.7, 0), Vector(-4.1, -18.7, 0)),
], False)
sketch6.addConstraint([
    Sketcher.Constraint("Coincident", 0, 2, 1, 1),
    Sketcher.Constraint("Coincident", 1, 2, 2, 1),
    Sketcher.Constraint("Coincident", 2, 2, 3, 1),
    Sketcher.Constraint("Coincident", 3, 2, 0, 1),
    Sketcher.Constraint("Vertical", 0),
    Sketcher.Constraint("Horizontal", 1),
    Sketcher.Constraint("Vertical", 2),
    Sketcher.Constraint("Horizontal", 3),
    Sketcher.Constraint("DistanceX", 1, 1, 1, 2, Q("8.5 mm")),
    Sketcher.Constraint("DistanceY", 0, 1, 0, 2, Q("9.6 mm")),
    Sketcher.Constraint("DistanceX", 0, 2, -1, 1, Q("4.1 mm")),
    Sketcher.Constraint("DistanceY", 0, 2, -1, 1, Q("9.1 mm")),
])
pad6 = doc.addObject("PartDesign::Pad", "Pad005")
body.addObject(pad6)
pad6.Profile = sketch6
pad6.Length = 4.25
pad6.Reversed = True

sketch7 = doc.addObject("Sketcher::SketchObject", "Sketch006")
body.addObject(sketch7)
sketch7.AttachmentSupport = (doc.XY_Plane, [""])
sketch7.MapMode = "FlatFace"
sketch7.addGeometry([
    Part.LineSegment(Vector(12.8, -12.1, 0), Vector(12.8, -5.4, 0)),
    Part.LineSegment(Vector(12.8, -5.4, 0), Vector(18.1, -5.4, 0)),
    Part.LineSegment(Vector(18.1, -5.4, 0), Vector(18.1, -12.1, 0)),
    Part.LineSegment(Vector(18.1, -12.1, 0), Vector(12.8, -12.1, 0)),
], False)
sketch7.addConstraint([
    Sketcher.Constraint("Coincident", 0, 2, 1, 1),
    Sketcher.Constraint("Coincident", 1, 2, 2, 1),
    Sketcher.Constraint("Coincident", 2, 2, 3, 1),
    Sketcher.Constraint("Coincident", 3, 2, 0, 1),
    Sketcher.Constraint("Vertical", 0),
    Sketcher.Constraint("Horizontal", 1),
    Sketcher.Constraint("Vertical", 2),
    Sketcher.Constraint("Horizontal", 3),
    Sketcher.Constraint("DistanceX", 1, 1, 1, 2, Q("5.3 mm")),
    Sketcher.Constraint("DistanceY", 0, 1, 0, 2, Q("6.7 mm")),
    Sketcher.Constraint("DistanceX", -1, 1, 0, 2, Q("12.8 mm")),
    Sketcher.Constraint("DistanceY", 0, 2, -1, 1, Q("5.4 mm")),
])
pad7 = doc.addObject("PartDesign::Pad", "Pad006")
body.addObject(pad7)
pad7.Profile = sketch7
pad7.Length = 3.4
pad7.Reversed = True

sketch8 = doc.addObject("Sketcher::SketchObject", "Sketch007")
body.addObject(sketch8)
sketch8.AttachmentSupport = (doc.XY_Plane, [""])
sketch8.MapMode = "FlatFace"
sketch8.addGeometry([
    Part.LineSegment(Vector(3.4, 11.1, 0), Vector(3.4, 18.1, 0)),
    Part.LineSegment(Vector(3.4, 18.1, 0), Vector(11.4, 18.1, 0)),
    Part.LineSegment(Vector(11.4, 18.1, 0), Vector(11.4, 11.1, 0)),
    Part.LineSegment(Vector(11.4, 11.1, 0), Vector(3.4, 11.1, 0)),
    Part.LineSegment(Vector(-11.3, 11.1, 0), Vector(-11.3, 18.1, 0)),
    Part.LineSegment(Vector(-11.3, 18.1, 0), Vector(-3.3, 18.1, 0)),
    Part.LineSegment(Vector(-3.3, 18.1, 0), Vector(-3.3, 11.1, 0)),
    Part.LineSegment(Vector(-3.3, 11.1, 0), Vector(-11.3, 11.1, 0)),
], False)
sketch8.addConstraint([
    Sketcher.Constraint("Coincident", 0, 2, 1, 1),
    Sketcher.Constraint("Coincident", 1, 2, 2, 1),
    Sketcher.Constraint("Coincident", 2, 2, 3, 1),
    Sketcher.Constraint("Coincident", 3, 2, 0, 1),
    Sketcher.Constraint("Coincident", 4, 2, 5, 1),
    Sketcher.Constraint("Coincident", 5, 2, 6, 1),
    Sketcher.Constraint("Coincident", 6, 2, 7, 1),
    Sketcher.Constraint("Coincident", 7, 2, 4, 1),
    Sketcher.Constraint("Vertical", 0),
    Sketcher.Constraint("Horizontal", 1),
    Sketcher.Constraint("Vertical", 2),
    Sketcher.Constraint("Horizontal", 3),
    Sketcher.Constraint("Vertical", 4),
    Sketcher.Constraint("Horizontal", 5),
    Sketcher.Constraint("Vertical", 6),
    Sketcher.Constraint("Horizontal", 7),
    Sketcher.Constraint("Horizontal", 1, 2, 4, 2),
    Sketcher.Constraint("Horizontal", 3, 2, 6, 2),
    Sketcher.Constraint("Equal", 3, 5),
    Sketcher.Constraint("DistanceX", 1, 1, 1, 2, Q("8 mm")),
    Sketcher.Constraint("DistanceY", 0, 1, 0, 2, Q("7 mm")),
    Sketcher.Constraint("DistanceX", -1, 1, 0, 2, Q("3.4 mm")),
    Sketcher.Constraint("DistanceY", -1, 1, 0, 2, Q("18.1 mm")),
    Sketcher.Constraint("DistanceX", 4, 2, -1, 1, Q("11.3 mm")),
])
pad8 = doc.addObject("PartDesign::Pad", "Pad007")
body.addObject(pad8)
pad8.Profile = sketch8
pad8.Length = 4
pad8.Reversed = True

doc.recompute()
